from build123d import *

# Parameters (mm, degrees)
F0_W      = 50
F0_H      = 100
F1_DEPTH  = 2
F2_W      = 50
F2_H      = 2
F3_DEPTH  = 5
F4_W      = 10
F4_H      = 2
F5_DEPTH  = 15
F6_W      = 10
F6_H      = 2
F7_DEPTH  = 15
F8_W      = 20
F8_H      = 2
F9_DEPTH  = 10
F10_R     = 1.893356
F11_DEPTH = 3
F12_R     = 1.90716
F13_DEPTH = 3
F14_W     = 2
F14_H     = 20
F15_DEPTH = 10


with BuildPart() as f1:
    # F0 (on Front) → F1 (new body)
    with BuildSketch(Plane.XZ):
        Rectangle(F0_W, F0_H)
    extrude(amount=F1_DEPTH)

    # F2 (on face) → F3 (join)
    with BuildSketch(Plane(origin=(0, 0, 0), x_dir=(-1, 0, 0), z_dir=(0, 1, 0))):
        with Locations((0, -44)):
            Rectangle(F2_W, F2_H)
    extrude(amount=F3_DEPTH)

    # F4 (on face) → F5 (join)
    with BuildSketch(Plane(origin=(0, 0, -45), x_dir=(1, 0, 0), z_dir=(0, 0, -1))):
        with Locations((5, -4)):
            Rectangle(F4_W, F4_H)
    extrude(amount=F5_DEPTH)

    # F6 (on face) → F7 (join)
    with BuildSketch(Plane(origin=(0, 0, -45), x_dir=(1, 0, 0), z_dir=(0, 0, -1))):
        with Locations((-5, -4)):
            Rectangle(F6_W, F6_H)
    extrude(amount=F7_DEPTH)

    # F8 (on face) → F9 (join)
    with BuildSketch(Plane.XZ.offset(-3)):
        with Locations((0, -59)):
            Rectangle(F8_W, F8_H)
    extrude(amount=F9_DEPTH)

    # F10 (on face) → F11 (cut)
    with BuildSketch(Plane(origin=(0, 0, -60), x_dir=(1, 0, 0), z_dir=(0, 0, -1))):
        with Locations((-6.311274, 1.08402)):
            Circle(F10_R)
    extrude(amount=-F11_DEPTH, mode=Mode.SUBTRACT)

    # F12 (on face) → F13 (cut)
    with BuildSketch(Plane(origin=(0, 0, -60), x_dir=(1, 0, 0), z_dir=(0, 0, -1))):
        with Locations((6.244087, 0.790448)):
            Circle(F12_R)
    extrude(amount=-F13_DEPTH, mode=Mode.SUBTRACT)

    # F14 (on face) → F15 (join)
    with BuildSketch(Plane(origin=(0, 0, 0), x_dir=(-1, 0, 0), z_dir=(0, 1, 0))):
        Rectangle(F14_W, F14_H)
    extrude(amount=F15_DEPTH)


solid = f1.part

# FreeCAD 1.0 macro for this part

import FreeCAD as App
import Part
import Sketcher

V = App.Vector


def add_polygon(sketch, points):
    """Adds a closed chain of lines whose ends are joined by coincident constraints."""
    first, n = sketch.GeometryCount, len(points)
    for a, b in zip(points, points[1:] + points[:1]):
        sketch.addGeometry(Part.LineSegment(App.Vector(*a, 0), App.Vector(*b, 0)), False)
    for i in range(n):
        sketch.addConstraint(Sketcher.Constraint("Coincident", first + i, 2, first + (i + 1) % n, 1))

doc = App.newDocument("Part")
body = doc.addObject("PartDesign::Body", "Body")

# Sketch on XZ plane
sketch1 = doc.addObject("Sketcher::SketchObject", "Sketch")
body.addObject(sketch1)
sketch1.AttachmentSupport = (doc.XZ_Plane, [""])
sketch1.MapMode = "FlatFace"
add_polygon(sketch1, [(-25, 50), (-25, -50), (25, -50), (25, 50)])  # lines 0-3
sketch1.addConstraint(Sketcher.Constraint("Vertical", 0))
sketch1.addConstraint(Sketcher.Constraint("Horizontal", 1))
sketch1.addConstraint(Sketcher.Constraint("Vertical", 2))
sketch1.addConstraint(Sketcher.Constraint("Horizontal", 3))
sketch1.addConstraint(Sketcher.Constraint("Symmetric", 0, 2, 2, 2, -1, 1))
sketch1.addConstraint(Sketcher.Constraint("DistanceX", 1, 1, 1, 2, 50.0))
sketch1.addConstraint(Sketcher.Constraint("DistanceY", 0, 2, 0, 1, 100.0))
pad1 = doc.addObject("PartDesign::Pad", "Pad")
body.addObject(pad1)
pad1.Profile = sketch1
pad1.Length = 2

# Sketch on XZ plane
sketch2 = doc.addObject("Sketcher::SketchObject", "Sketch001")
body.addObject(sketch2)
sketch2.AttachmentSupport = (doc.XZ_Plane, [""])
sketch2.MapMode = "FlatFace"
add_polygon(sketch2, [(25, -43), (25, -45), (-25, -45), (-25, -43)])  # lines 0-3
sketch2.addConstraint(Sketcher.Constraint("Vertical", 0))
sketch2.addConstraint(Sketcher.Constraint("Horizontal", 1))
sketch2.addConstraint(Sketcher.Constraint("Vertical", 2))
sketch2.addConstraint(Sketcher.Constraint("Horizontal", 3))
sketch2.addConstraint(Sketcher.Constraint("DistanceX", 1, 2, 1, 1, 50.0))
sketch2.addConstraint(Sketcher.Constraint("DistanceY", 0, 2, 0, 1, 2.0))
sketch2.addConstraint(Sketcher.Constraint("DistanceX", -1, 1, 0, 2, 25.0))
sketch2.addConstraint(Sketcher.Constraint("DistanceY", 0, 2, -1, 1, 45.0))
pad2 = doc.addObject("PartDesign::Pad", "Pad001")
body.addObject(pad2)
pad2.Profile = sketch2
pad2.Length = 5
pad2.Reversed = True

# Sketch on XY plane
sketch3 = doc.addObject("Sketcher::SketchObject", "Sketch002")
body.addObject(sketch3)
sketch3.AttachmentSupport = (doc.XY_Plane, [""])
sketch3.MapMode = "FlatFace"
sketch3.AttachmentOffset = App.Placement(V(0, 0, -45), App.Rotation())
add_polygon(sketch3, [(0, 3), (0, 5), (10, 5), (10, 3)])  # lines 0-3
sketch3.addConstraint(Sketcher.Constraint("Vertical", 0))
sketch3.addConstraint(Sketcher.Constraint("Horizontal", 1))
sketch3.addConstraint(Sketcher.Constraint("Vertical", 2))
sketch3.addConstraint(Sketcher.Constraint("Horizontal", 3))
sketch3.addConstraint(Sketcher.Constraint("PointOnObject", 0, 2, -2))
sketch3.addConstraint(Sketcher.Constraint("DistanceX", 1, 1, 1, 2, 10.0))
sketch3.addConstraint(Sketcher.Constraint("DistanceY", 0, 1, 0, 2, 2.0))
sketch3.addConstraint(Sketcher.Constraint("DistanceY", -1, 1, 0, 2, 5.0))
pad3 = doc.addObject("PartDesign::Pad", "Pad002")
body.addObject(pad3)
pad3.Profile = sketch3
pad3.Length = 15
pad3.Reversed = True

# Sketch on XY plane
sketch4 = doc.addObject("Sketcher::SketchObject", "Sketch003")
body.addObject(sketch4)
sketch4.AttachmentSupport = (doc.XY_Plane, [""])
sketch4.MapMode = "FlatFace"
sketch4.AttachmentOffset = App.Placement(V(0, 0, -45), App.Rotation())
add_polygon(sketch4, [(-10, 3), (-10, 5), (0, 5), (0, 3)])  # lines 0-3
sketch4.addConstraint(Sketcher.Constraint("Vertical", 0))
sketch4.addConstraint(Sketcher.Constraint("Horizontal", 1))
sketch4.addConstraint(Sketcher.Constraint("Vertical", 2))
sketch4.addConstraint(Sketcher.Constraint("Horizontal", 3))
sketch4.addConstraint(Sketcher.Constraint("PointOnObject", 1, 2, -2))
sketch4.addConstraint(Sketcher.Constraint("DistanceX", 1, 1, 1, 2, 10.0))
sketch4.addConstraint(Sketcher.Constraint("DistanceY", 0, 1, 0, 2, 2.0))
sketch4.addConstraint(Sketcher.Constraint("DistanceY", -1, 1, 0, 2, 5.0))
pad4 = doc.addObject("PartDesign::Pad", "Pad003")
body.addObject(pad4)
pad4.Profile = sketch4
pad4.Length = 15
pad4.Reversed = True

# Sketch on XZ plane
sketch5 = doc.addObject("Sketcher::SketchObject", "Sketch004")
body.addObject(sketch5)
sketch5.AttachmentSupport = (doc.XZ_Plane, [""])
sketch5.MapMode = "FlatFace"
sketch5.AttachmentOffset = App.Placement(V(0, 0, -3), App.Rotation())
add_polygon(sketch5, [(-10, -58), (-10, -60), (10, -60), (10, -58)])  # lines 0-3
sketch5.addConstraint(Sketcher.Constraint("Vertical", 0))
sketch5.addConstraint(Sketcher.Constraint("Horizontal", 1))
sketch5.addConstraint(Sketcher.Constraint("Vertical", 2))
sketch5.addConstraint(Sketcher.Constraint("Horizontal", 3))
sketch5.addConstraint(Sketcher.Constraint("DistanceX", 1, 1, 1, 2, 20.0))
sketch5.addConstraint(Sketcher.Constraint("DistanceY", 0, 2, 0, 1, 2.0))
sketch5.addConstraint(Sketcher.Constraint("DistanceX", 0, 2, -1, 1, 10.0))
sketch5.addConstraint(Sketcher.Constraint("DistanceY", 0, 2, -1, 1, 60.0))
pad5 = doc.addObject("PartDesign::Pad", "Pad004")
body.addObject(pad5)
pad5.Profile = sketch5
pad5.Length = 10

# Sketch on XY plane
sketch6 = doc.addObject("Sketcher::SketchObject", "Sketch005")
body.addObject(sketch6)
sketch6.AttachmentSupport = (doc.XY_Plane, [""])
sketch6.MapMode = "FlatFace"
sketch6.AttachmentOffset = App.Placement(V(0, 0, -60), App.Rotation())
sketch6.addGeometry(Part.Circle(V(-6.311274, -1.08402, 0), V(0, 0, 1), 1.893356), False)
sketch6.addConstraint(Sketcher.Constraint("Diameter", 0, 3.786712))
sketch6.addConstraint(Sketcher.Constraint("DistanceY", 0, 3, -1, 1, 1.08402))
sketch6.addConstraint(Sketcher.Constraint("DistanceX", 0, 3, -1, 1, 6.311274))
pocket1 = doc.addObject("PartDesign::Pocket", "Pocket")
body.addObject(pocket1)
pocket1.Profile = sketch6
pocket1.Length = 3
pocket1.Reversed = True

# Sketch on XY plane
sketch7 = doc.addObject("Sketcher::SketchObject", "Sketch006")
body.addObject(sketch7)
sketch7.AttachmentSupport = (doc.XY_Plane, [""])
sketch7.MapMode = "FlatFace"
sketch7.AttachmentOffset = App.Placement(V(0, 0, -60), App.Rotation())
sketch7.addGeometry(Part.Circle(V(6.244087, -0.790448, 0), V(0, 0, 1), 1.90716), False)
sketch7.addConstraint(Sketcher.Constraint("Diameter", 0, 3.81432))
sketch7.addConstraint(Sketcher.Constraint("DistanceY", 0, 3, -1, 1, 0.790448))
sketch7.addConstraint(Sketcher.Constraint("DistanceX", -1, 1, 0, 3, 6.244087))
pocket2 = doc.addObject("PartDesign::Pocket", "Pocket001")
body.addObject(pocket2)
pocket2.Profile = sketch7
pocket2.Length = 3
pocket2.Reversed = True

# Sketch on XZ plane
sketch8 = doc.addObject("Sketcher::SketchObject", "Sketch007")
body.addObject(sketch8)
sketch8.AttachmentSupport = (doc.XZ_Plane, [""])
sketch8.MapMode = "FlatFace"
add_polygon(sketch8, [(1, 10), (1, -10), (-1, -10), (-1, 10)])  # lines 0-3
sketch8.addConstraint(Sketcher.Constraint("Vertical", 0))
sketch8.addConstraint(Sketcher.Constraint("Horizontal", 1))
sketch8.addConstraint(Sketcher.Constraint("Vertical", 2))
sketch8.addConstraint(Sketcher.Constraint("Horizontal", 3))
sketch8.addConstraint(Sketcher.Constraint("Symmetric", 0, 2, 2, 2, -1, 1))
sketch8.addConstraint(Sketcher.Constraint("DistanceX", 1, 2, 1, 1, 2.0))
sketch8.addConstraint(Sketcher.Constraint("DistanceY", 0, 2, 0, 1, 20.0))
pad6 = doc.addObject("PartDesign::Pad", "Pad005")
body.addObject(pad6)
pad6.Profile = sketch8
pad6.Length = 10
pad6.Reversed = True

doc.recompute()
